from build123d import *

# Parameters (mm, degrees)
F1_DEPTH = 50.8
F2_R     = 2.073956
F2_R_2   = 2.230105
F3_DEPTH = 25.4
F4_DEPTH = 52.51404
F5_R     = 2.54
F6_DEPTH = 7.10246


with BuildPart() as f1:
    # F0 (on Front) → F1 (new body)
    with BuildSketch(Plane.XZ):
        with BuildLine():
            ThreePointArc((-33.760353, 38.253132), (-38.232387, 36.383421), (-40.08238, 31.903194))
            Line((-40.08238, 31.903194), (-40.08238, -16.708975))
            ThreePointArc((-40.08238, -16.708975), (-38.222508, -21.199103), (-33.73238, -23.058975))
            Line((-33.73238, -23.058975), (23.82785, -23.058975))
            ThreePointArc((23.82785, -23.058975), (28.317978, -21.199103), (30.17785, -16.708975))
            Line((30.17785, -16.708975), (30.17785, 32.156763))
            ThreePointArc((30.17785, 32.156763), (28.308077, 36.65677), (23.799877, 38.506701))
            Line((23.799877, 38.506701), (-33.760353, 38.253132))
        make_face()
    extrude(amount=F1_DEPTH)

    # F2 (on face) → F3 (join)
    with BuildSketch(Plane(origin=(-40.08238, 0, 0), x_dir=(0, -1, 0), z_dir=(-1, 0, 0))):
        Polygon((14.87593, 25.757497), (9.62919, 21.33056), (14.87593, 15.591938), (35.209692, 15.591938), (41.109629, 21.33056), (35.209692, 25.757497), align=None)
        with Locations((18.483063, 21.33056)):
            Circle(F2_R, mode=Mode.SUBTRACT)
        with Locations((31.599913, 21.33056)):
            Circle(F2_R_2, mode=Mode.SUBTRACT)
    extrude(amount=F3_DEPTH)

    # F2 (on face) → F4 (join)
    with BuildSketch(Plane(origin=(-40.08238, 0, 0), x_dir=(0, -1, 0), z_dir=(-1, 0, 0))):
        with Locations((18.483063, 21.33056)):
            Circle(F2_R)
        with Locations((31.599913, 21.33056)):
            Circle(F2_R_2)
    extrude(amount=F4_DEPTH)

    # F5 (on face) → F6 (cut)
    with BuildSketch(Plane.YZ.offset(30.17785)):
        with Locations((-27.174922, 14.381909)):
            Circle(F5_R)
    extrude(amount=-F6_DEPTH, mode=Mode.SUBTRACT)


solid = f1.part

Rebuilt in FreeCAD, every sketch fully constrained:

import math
import FreeCAD as App
import Part
import Sketcher

V = App.Vector
Q = App.Units.Quantity

doc = App.newDocument("Part")
body = doc.addObject("PartDesign::Body", "Body")

sketch1 = body.newObject("Sketcher::SketchObject", "Sketch")
sketch1.AttachmentSupport = (doc.getObject("XZ_Plane"), [""])
sketch1.MapMode = "FlatFace"
sketch1.addGeometry([
    Part.ArcOfCircle(Part.Circle(V(-33.73238, 31.903194, 0), V(0, 0, 1), 6.35), math.radians(90.252399), math.radians(179.999997)),
    Part.LineSegment(V(-40.08238, 31.903194, 0), V(-40.08238, -16.708975, 0)),
    Part.ArcOfCircle(Part.Circle(V(-33.73238, -16.708975, 0), V(0, 0, 1), 6.35), math.radians(-179.999998), math.radians(-90.000002)),
    Part.LineSegment(V(-33.73238, -23.058975, 0), V(23.82785, -23.058975, 0)),
    Part.ArcOfCircle(Part.Circle(V(23.82785, -16.708975, 0), V(0, 0, 1), 6.35), math.radians(-89.999998), math.radians(-0.000002)),
    Part.LineSegment(V(30.17785, -16.708975, 0), V(30.17785, 32.156763, 0)),
    Part.ArcOfCircle(Part.Circle(V(23.82785, 32.156763, 0), V(0, 0, 1), 6.35), math.radians(0.000003), math.radians(90.252401)),
    Part.LineSegment(V(23.799877, 38.506701, 0), V(-33.760353, 38.253132, 0)),
], False)
sketch1.addConstraint([
    Sketcher.Constraint("Tangent", 0, 2, 1, 1),
    Sketcher.Constraint("Tangent", 1, 2, 2, 1),
    Sketcher.Constraint("Tangent", 2, 2, 3, 1),
    Sketcher.Constraint("Tangent", 3, 2, 4, 1),
    Sketcher.Constraint("Tangent", 4, 2, 5, 1),
    Sketcher.Constraint("Tangent", 5, 2, 6, 1),
    Sketcher.Constraint("Tangent", 6, 2, 7, 1),
    Sketcher.Constraint("Tangent", 7, 2, 0, 1),
    Sketcher.Constraint("Vertical", 1),
    Sketcher.Constraint("Horizontal", 3),
    Sketcher.Constraint("Vertical", 5),
    Sketcher.Constraint("Equal", 0, 2),
    Sketcher.Constraint("Equal", 2, 4),
    Sketcher.Constraint("Equal", 4, 6),
    Sketcher.Constraint("Radius", 0, Q("0.25 in")),
    Sketcher.Constraint("DistanceX", 3, 1, 3, 2, 57.56023),
    Sketcher.Constraint("DistanceY", 1, 2, 1, 1, 48.612169),
    Sketcher.Constraint("DistanceY", -1, 1, 6, 2, 38.506701),
    Sketcher.Constraint("DistanceY", 5, 1, 5, 2, 48.865738),
    Sketcher.Constraint("DistanceX", 0, 3, -1, 1, 33.73238),
])
pad1 = body.newObject("PartDesign::Pad", "Pad")
pad1.Profile = sketch1
pad1.Length = Q("2 in")

sketch2 = body.newObject("Sketcher::SketchObject", "Sketch001")
sketch2.AttachmentSupport = (doc.getObject("YZ_Plane"), [""])
sketch2.MapMode = "FlatFace"
sketch2.AttachmentOffset = App.Placement(V(0, 0, -40.08238), App.Rotation())
sketch2.addGeometry([
    Part.LineSegment(V(-14.87593, 25.757497, 0), V(-9.62919, 21.33056, 0)),
    Part.LineSegment(V(-9.62919, 21.33056, 0), V(-14.87593, 15.591938, 0)),
    Part.LineSegment(V(-14.87593, 15.591938, 0), V(-35.209692, 15.591938, 0)),
    Part.LineSegment(V(-35.209692, 15.591938, 0), V(-41.109629, 21.33056, 0)),
    Part.LineSegment(V(-41.109629, 21.33056, 0), V(-35.209692, 25.757497, 0)),
    Part.LineSegment(V(-35.209692, 25.757497, 0), V(-14.87593, 25.757497, 0)),
    Part.Circle(V(-18.483063, 21.33056, 0), V(0, 0, 1), 2.073956),
    Part.Circle(V(-31.599913, 21.33056, 0), V(0, 0, 1), 2.230105),
], False)
sketch2.addConstraint([
    Sketcher.Constraint("Coincident", 0, 2, 1, 1),
    Sketcher.Constraint("Coincident", 1, 2, 2, 1),
    Sketcher.Constraint("Coincident", 2, 2, 3, 1),
    Sketcher.Constraint("Coincident", 3, 2, 4, 1),
    Sketcher.Constraint("Coincident", 4, 2, 5, 1),
    Sketcher.Constraint("Coincident", 5, 2, 0, 1),
    Sketcher.Constraint("Horizontal", 2),
    Sketcher.Constraint("Horizontal", 5),
    Sketcher.Constraint("Horizontal", 6, 3, 7, 3),
    Sketcher.Constraint("Horizontal", 7, 3, 0, 2),
    Sketcher.Constraint("Horizontal", 0, 2, 3, 2),
    Sketcher.Constraint("Vertical", 2, 2, 4, 2),
    Sketcher.Constraint("Vertical", 1, 2, 5, 2),
    Sketcher.Constraint("Diameter", 6, 4.147912),
    Sketcher.Constraint("Diameter", 7, 4.46021),
    Sketcher.Constraint("DistanceX", 2, 2, 2, 1, 20.333762),
    Sketcher.Constraint("DistanceX", 2, 2, 0, 2, 25.580502),
    Sketcher.Constraint("DistanceX", 3, 2, 1, 2, 26.233699),
    Sketcher.Constraint("Distance", 0, 6.864842),
    Sketcher.Constraint("DistanceY", -1, 1, 6, 3, 21.33056),
    Sketcher.Constraint("DistanceX", 0, 2, -1, 1, 9.62919),
    Sketcher.Constraint("DistanceY", -1, 1, 1, 2, 15.591938),
    Sketcher.Constraint("DistanceX", 7, 3, 6, 3, 13.11685),
    Sketcher.Constraint("DistanceX", 2, 2, 7, 3, 3.609779),
])
pad2 = body.newObject("PartDesign::Pad", "Pad001")
pad2.Profile = sketch2
pad2.Length = Q("1 in")
pad2.Reversed = True

sketch3 = body.newObject("Sketcher::SketchObject", "Sketch002")
sketch3.AttachmentSupport = (doc.getObject("YZ_Plane"), [""])
sketch3.MapMode = "FlatFace"
sketch3.AttachmentOffset = App.Placement(V(0, 0, -40.08238), App.Rotation())
sketch3.addGeometry([
    Part.Circle(V(-18.483063, 21.33056, 0), V(0, 0, 1), 2.073956),
    Part.Circle(V(-31.599913, 21.33056, 0), V(0, 0, 1), 2.230105),
], False)
sketch3.addConstraint([
    Sketcher.Constraint("Horizontal", 0, 3, 1, 3),
    Sketcher.Constraint("Diameter", 0, 4.147912),
    Sketcher.Constraint("Diameter", 1, 4.46021),
    Sketcher.Constraint("DistanceY", -1, 1, 0, 3, 21.33056),
    Sketcher.Constraint("DistanceX", 1, 3, 0, 3, 13.11685),
    Sketcher.Constraint("DistanceX", 0, 3, -1, 1, 18.483063),
])
pad3 = body.newObject("PartDesign::Pad", "Pad002")
pad3.Profile = sketch3
pad3.Length = 52.51404
pad3.Reversed = True

sketch4 = body.newObject("Sketcher::SketchObject", "Sketch003")
sketch4.AttachmentSupport = (doc.getObject("YZ_Plane"), [""])
sketch4.MapMode = "FlatFace"
sketch4.AttachmentOffset = App.Placement(V(0, 0, 30.17785), App.Rotation())
sketch4.addGeometry(Part.Circle(V(-27.174922, 14.381909, 0), V(0, 0, 1), 2.54), False)
sketch4.addConstraint([
    Sketcher.Constraint("Diameter", 0, Q("0.2 in")),
    Sketcher.Constraint("DistanceX", 0, 3, -1, 1, 27.174922),
    Sketcher.Constraint("DistanceY", -1, 1, 0, 3, 14.381909),
])
pocket1 = body.newObject("PartDesign::Pocket", "Pocket")
pocket1.Profile = sketch4
pocket1.Length = 7.10246

doc.recompute()
